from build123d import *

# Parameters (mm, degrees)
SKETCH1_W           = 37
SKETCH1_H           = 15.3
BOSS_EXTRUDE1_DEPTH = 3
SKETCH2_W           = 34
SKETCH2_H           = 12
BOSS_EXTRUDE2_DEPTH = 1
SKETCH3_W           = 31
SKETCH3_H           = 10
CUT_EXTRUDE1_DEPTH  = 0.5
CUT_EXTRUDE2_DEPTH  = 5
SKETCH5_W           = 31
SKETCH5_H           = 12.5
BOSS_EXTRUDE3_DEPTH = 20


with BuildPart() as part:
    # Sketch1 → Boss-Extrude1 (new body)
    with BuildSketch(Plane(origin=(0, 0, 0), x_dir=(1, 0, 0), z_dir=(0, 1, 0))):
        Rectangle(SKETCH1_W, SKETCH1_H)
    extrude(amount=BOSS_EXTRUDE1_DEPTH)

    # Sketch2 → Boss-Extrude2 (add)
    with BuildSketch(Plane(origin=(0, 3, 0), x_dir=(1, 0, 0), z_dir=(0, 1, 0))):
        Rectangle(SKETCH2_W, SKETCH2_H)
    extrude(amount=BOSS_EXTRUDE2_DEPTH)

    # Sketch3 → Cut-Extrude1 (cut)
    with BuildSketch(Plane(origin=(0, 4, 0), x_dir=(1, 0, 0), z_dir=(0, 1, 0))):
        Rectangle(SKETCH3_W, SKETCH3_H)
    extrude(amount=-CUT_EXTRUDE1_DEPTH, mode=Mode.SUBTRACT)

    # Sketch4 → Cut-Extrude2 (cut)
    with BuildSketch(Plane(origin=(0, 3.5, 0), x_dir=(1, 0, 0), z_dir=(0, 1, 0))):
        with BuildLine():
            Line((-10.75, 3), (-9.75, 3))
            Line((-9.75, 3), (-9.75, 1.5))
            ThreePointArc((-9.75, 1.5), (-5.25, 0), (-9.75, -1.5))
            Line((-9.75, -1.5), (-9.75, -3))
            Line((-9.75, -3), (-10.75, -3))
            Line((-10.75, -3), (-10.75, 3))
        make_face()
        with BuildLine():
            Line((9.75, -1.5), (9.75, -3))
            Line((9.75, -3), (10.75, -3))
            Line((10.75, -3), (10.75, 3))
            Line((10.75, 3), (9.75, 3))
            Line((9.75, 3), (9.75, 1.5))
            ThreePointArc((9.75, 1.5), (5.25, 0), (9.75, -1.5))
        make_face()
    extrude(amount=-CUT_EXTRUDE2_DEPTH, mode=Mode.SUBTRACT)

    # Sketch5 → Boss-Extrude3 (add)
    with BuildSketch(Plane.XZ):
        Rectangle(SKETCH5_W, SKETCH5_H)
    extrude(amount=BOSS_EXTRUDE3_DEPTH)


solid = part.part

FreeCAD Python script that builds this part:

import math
import FreeCAD as App
import Part
import Sketcher
Q = App.Units.Quantity


def add_polygon(sketch, points):
    """Adds a closed chain of lines whose ends are joined by coincident constraints."""
    first, n = sketch.GeometryCount, len(points)
    for a, b in zip(points, points[1:] + points[:1]):
        sketch.addGeometry(Part.LineSegment(App.Vector(*a, 0), App.Vector(*b, 0)), False)
    for i in range(n):
        sketch.addConstraint(Sketcher.Constraint("Coincident", first + i, 2, first + (i + 1) % n, 1))

doc = App.newDocument("Part")
body = doc.addObject("PartDesign::Body", "Body")

# Sketch on XZ plane
sketch1 = body.newObject("Sketcher::SketchObject", "Sketch")
sketch1.AttachmentSupport = (doc.getObject("XZ_Plane"), [""])
sketch1.MapMode = "FlatFace"
add_polygon(sketch1, [(-18, -8), (-18, 8), (18, 8), (18, -8)])  # lines 0-3
sketch1.addConstraint(Sketcher.Constraint("Vertical", 0))
sketch1.addConstraint(Sketcher.Constraint("Horizontal", 1))
sketch1.addConstraint(Sketcher.Constraint("Vertical", 2))
sketch1.addConstraint(Sketcher.Constraint("Horizontal", 3))
sketch1.addConstraint(Sketcher.Constraint("Symmetric", 0, 2, 2, 2, -1, 1))
sketch1.addConstraint(Sketcher.Constraint("DistanceX", 1, 1, 1, 2, Q("37 mm")))
sketch1.addConstraint(Sketcher.Constraint("DistanceY", 0, 1, 0, 2, Q("15.3 mm")))
pad1 = body.newObject("PartDesign::Pad", "Pad")
pad1.Profile = sketch1
pad1.Length = 3
pad1.Reversed = True

# Sketch on XZ plane
sketch2 = body.newObject("Sketcher::SketchObject", "Sketch001")
sketch2.AttachmentSupport = (doc.getObject("XZ_Plane"), [""])
sketch2.MapMode = "FlatFace"
sketch2.AttachmentOffset = App.Placement(App.Vector(0, 0, -3), App.Rotation())
add_polygon(sketch2, [(-17, -6), (-17, 6), (17, 6), (17, -6)])  # lines 0-3
sketch2.addConstraint(Sketcher.Constraint("Vertical", 0))
sketch2.addConstraint(Sketcher.Constraint("Horizontal", 1))
sketch2.addConstraint(Sketcher.Constraint("Vertical", 2))
sketch2.addConstraint(Sketcher.Constraint("Horizontal", 3))
sketch2.addConstraint(Sketcher.Constraint("Symmetric", 0, 2, 2, 2, -1, 1))
sketch2.addConstraint(Sketcher.Constraint("DistanceX", 1, 1, 1, 2, Q("34 mm")))
sketch2.addConstraint(Sketcher.Constraint("DistanceY", 0, 1, 0, 2, Q("12 mm")))
pad2 = body.newObject("PartDesign::Pad", "Pad001")
pad2.Profile = sketch2
pad2.Length = 1
pad2.Reversed = True

# Sketch on XZ plane
sketch3 = body.newObject("Sketcher::SketchObject", "Sketch002")
sketch3.AttachmentSupport = (doc.getObject("XZ_Plane"), [""])
sketch3.MapMode = "FlatFace"
sketch3.AttachmentOffset = App.Placement(App.Vector(0, 0, -4), App.Rotation())
add_polygon(sketch3, [(-16, -5), (-16, 5), (16, 5), (16, -5)])  # lines 0-3
sketch3.addConstraint(Sketcher.Constraint("Vertical", 0))
sketch3.addConstraint(Sketcher.Constraint("Horizontal", 1))
sketch3.addConstraint(Sketcher.Constraint("Vertical", 2))
sketch3.addConstraint(Sketcher.Constraint("Horizontal", 3))
sketch3.addConstraint(Sketcher.Constraint("Symmetric", 0, 2, 2, 2, -1, 1))
sketch3.addConstraint(Sketcher.Constraint("DistanceX", 1, 1, 1, 2, Q("31 mm")))
sketch3.addConstraint(Sketcher.Constraint("DistanceY", 0, 1, 0, 2, Q("10 mm")))
pocket1 = body.newObject("PartDesign::Pocket", "Pocket")
pocket1.Profile = sketch3
pocket1.Length = 0.5
pocket1.Reversed = True

# Sketch on XZ plane
sketch4 = body.newObject("Sketcher::SketchObject", "Sketch003")
sketch4.AttachmentSupport = (doc.getObject("XZ_Plane"), [""])
sketch4.MapMode = "FlatFace"
sketch4.AttachmentOffset = App.Placement(App.Vector(0, 0, -3.5), App.Rotation())
sketch4.addGeometry(Part.LineSegment(App.Vector(-9.8, -3, 0), App.Vector(-10.8, -3, 0)), False)
sketch4.addGeometry(Part.LineSegment(App.Vector(-10.8, -3, 0), App.Vector(-10.8, 3, 0)), False)
sketch4.addGeometry(Part.LineSegment(App.Vector(-10.8, 3, 0), App.Vector(-9.8, 3, 0)), False)
sketch4.addGeometry(Part.LineSegment(App.Vector(-9.8, 3, 0), App.Vector(-9.8, 1.5, 0)), False)
sketch4.addGeometry(Part.ArcOfCircle(Part.Circle(App.Vector(-7.8, 0, 0), App.Vector(0, 0, 1), 2.5), math.radians(-143), math.radians(143)), False)
sketch4.addGeometry(Part.LineSegment(App.Vector(-9.8, -1.5, 0), App.Vector(-9.8, -3, 0)), False)
sketch4.addGeometry(Part.LineSegment(App.Vector(9.8, 1.5, 0), App.Vector(9.8, 3, 0)), False)
sketch4.addGeometry(Part.LineSegment(App.Vector(9.8, 3, 0), App.Vector(10.8, 3, 0)), False)
sketch4.addGeometry(Part.LineSegment(App.Vector(10.8, 3, 0), App.Vector(10.8, -3, 0)), False)
sketch4.addGeometry(Part.LineSegment(App.Vector(10.8, -3, 0), App.Vector(9.8, -3, 0)), False)
sketch4.addGeometry(Part.LineSegment(App.Vector(9.8, -3, 0), App.Vector(9.8, -1.5, 0)), False)
sketch4.addGeometry(Part.ArcOfCircle(Part.Circle(App.Vector(7.8, 0, 0), App.Vector(0, 0, 1), 2.5), math.radians(37), math.radians(323)), False)
sketch4.addConstraint(Sketcher.Constraint("Coincident", 0, 2, 1, 1))
sketch4.addConstraint(Sketcher.Constraint("Coincident", 1, 2, 2, 1))
sketch4.addConstraint(Sketcher.Constraint("Coincident", 2, 2, 3, 1))
sketch4.addConstraint(Sketcher.Constraint("Coincident", 3, 2, 4, 2))
sketch4.addConstraint(Sketcher.Constraint("Coincident", 4, 1, 5, 1))
sketch4.addConstraint(Sketcher.Constraint("Coincident", 5, 2, 0, 1))
sketch4.addConstraint(Sketcher.Constraint("Coincident", 6, 2, 7, 1))
sketch4.addConstraint(Sketcher.Constraint("Coincident", 7, 2, 8, 1))
sketch4.addConstraint(Sketcher.Constraint("Coincident", 8, 2, 9, 1))
sketch4.addConstraint(Sketcher.Constraint("Coincident", 9, 2, 10, 1))
sketch4.addConstraint(Sketcher.Constraint("Coincident", 10, 2, 11, 2))
sketch4.addConstraint(Sketcher.Constraint("Coincident", 11, 1, 6, 1))
sketch4.addConstraint(Sketcher.Constraint("Horizontal", 0))
sketch4.addConstraint(Sketcher.Constraint("Vertical", 1))
sketch4.addConstraint(Sketcher.Constraint("Horizontal", 2))
sketch4.addConstraint(Sketcher.Constraint("Vertical", 3))
sketch4.addConstraint(Sketcher.Constraint("Vertical", 5))
sketch4.addConstraint(Sketcher.Constraint("Vertical", 6))
sketch4.addConstraint(Sketcher.Constraint("Horizontal", 7))
sketch4.addConstraint(Sketcher.Constraint("Vertical", 8))
sketch4.addConstraint(Sketcher.Constraint("Horizontal", 9))
sketch4.addConstraint(Sketcher.Constraint("Vertical", 10))
sketch4.addConstraint(Sketcher.Constraint("Equal", 4, 11))
sketch4.addConstraint(Sketcher.Constraint("Symmetric", 4, 3, 11, 3, -1, 1))
sketch4.addConstraint(Sketcher.Constraint("Symmetric", 5, 2, 6, 2, -1, 1))
sketch4.addConstraint(Sketcher.Constraint("Symmetric", 1, 2, 8, 2, -1, 1))
sketch4.addConstraint(Sketcher.Constraint("Symmetric", 2, 2, 6, 2, -2))
sketch4.addConstraint(Sketcher.Constraint("Symmetric", 4, 1, 10, 2, -2))
sketch4.addConstraint(Sketcher.Constraint("Radius", 4, Q("2.5 mm")))
sketch4.addConstraint(Sketcher.Constraint("DistanceX", 0, 2, 0, 1, Q("1 mm")))
sketch4.addConstraint(Sketcher.Constraint("DistanceY", 1, 1, 1, 2, Q("6 mm")))
sketch4.addConstraint(Sketcher.Constraint("DistanceY", 3, 2, 3, 1, Q("1.5 mm")))
sketch4.addConstraint(Sketcher.Constraint("DistanceX", 4, 3, 11, 3, Q("15.5 mm")))
pocket2 = body.newObject("PartDesign::Pocket", "Pocket001")
pocket2.Profile = sketch4
pocket2.Length = 5
pocket2.Reversed = True

# Sketch on XZ plane
sketch5 = body.newObject("Sketcher::SketchObject", "Sketch004")
sketch5.AttachmentSupport = (doc.getObject("XZ_Plane"), [""])
sketch5.MapMode = "FlatFace"
add_polygon(sketch5, [(-16, 6), (-16, -6), (16, -6), (16, 6)])  # lines 0-3
sketch5.addConstraint(Sketcher.Constraint("Vertical", 0))
sketch5.addConstraint(Sketcher.Constraint("Horizontal", 1))
sketch5.addConstraint(Sketcher.Constraint("Vertical", 2))
sketch5.addConstraint(Sketcher.Constraint("Horizontal", 3))
sketch5.addConstraint(Sketcher.Constraint("Symmetric", 0, 2, 2, 2, -1, 1))
sketch5.addConstraint(Sketcher.Constraint("DistanceX", 1, 1, 1, 2, Q("31 mm")))
sketch5.addConstraint(Sketcher.Constraint("DistanceY", 0, 2, 0, 1, Q("12.5 mm")))
pad3 = body.newObject("PartDesign::Pad", "Pad002")
pad3.Profile = sketch5
pad3.Length = 20

doc.recompute()
